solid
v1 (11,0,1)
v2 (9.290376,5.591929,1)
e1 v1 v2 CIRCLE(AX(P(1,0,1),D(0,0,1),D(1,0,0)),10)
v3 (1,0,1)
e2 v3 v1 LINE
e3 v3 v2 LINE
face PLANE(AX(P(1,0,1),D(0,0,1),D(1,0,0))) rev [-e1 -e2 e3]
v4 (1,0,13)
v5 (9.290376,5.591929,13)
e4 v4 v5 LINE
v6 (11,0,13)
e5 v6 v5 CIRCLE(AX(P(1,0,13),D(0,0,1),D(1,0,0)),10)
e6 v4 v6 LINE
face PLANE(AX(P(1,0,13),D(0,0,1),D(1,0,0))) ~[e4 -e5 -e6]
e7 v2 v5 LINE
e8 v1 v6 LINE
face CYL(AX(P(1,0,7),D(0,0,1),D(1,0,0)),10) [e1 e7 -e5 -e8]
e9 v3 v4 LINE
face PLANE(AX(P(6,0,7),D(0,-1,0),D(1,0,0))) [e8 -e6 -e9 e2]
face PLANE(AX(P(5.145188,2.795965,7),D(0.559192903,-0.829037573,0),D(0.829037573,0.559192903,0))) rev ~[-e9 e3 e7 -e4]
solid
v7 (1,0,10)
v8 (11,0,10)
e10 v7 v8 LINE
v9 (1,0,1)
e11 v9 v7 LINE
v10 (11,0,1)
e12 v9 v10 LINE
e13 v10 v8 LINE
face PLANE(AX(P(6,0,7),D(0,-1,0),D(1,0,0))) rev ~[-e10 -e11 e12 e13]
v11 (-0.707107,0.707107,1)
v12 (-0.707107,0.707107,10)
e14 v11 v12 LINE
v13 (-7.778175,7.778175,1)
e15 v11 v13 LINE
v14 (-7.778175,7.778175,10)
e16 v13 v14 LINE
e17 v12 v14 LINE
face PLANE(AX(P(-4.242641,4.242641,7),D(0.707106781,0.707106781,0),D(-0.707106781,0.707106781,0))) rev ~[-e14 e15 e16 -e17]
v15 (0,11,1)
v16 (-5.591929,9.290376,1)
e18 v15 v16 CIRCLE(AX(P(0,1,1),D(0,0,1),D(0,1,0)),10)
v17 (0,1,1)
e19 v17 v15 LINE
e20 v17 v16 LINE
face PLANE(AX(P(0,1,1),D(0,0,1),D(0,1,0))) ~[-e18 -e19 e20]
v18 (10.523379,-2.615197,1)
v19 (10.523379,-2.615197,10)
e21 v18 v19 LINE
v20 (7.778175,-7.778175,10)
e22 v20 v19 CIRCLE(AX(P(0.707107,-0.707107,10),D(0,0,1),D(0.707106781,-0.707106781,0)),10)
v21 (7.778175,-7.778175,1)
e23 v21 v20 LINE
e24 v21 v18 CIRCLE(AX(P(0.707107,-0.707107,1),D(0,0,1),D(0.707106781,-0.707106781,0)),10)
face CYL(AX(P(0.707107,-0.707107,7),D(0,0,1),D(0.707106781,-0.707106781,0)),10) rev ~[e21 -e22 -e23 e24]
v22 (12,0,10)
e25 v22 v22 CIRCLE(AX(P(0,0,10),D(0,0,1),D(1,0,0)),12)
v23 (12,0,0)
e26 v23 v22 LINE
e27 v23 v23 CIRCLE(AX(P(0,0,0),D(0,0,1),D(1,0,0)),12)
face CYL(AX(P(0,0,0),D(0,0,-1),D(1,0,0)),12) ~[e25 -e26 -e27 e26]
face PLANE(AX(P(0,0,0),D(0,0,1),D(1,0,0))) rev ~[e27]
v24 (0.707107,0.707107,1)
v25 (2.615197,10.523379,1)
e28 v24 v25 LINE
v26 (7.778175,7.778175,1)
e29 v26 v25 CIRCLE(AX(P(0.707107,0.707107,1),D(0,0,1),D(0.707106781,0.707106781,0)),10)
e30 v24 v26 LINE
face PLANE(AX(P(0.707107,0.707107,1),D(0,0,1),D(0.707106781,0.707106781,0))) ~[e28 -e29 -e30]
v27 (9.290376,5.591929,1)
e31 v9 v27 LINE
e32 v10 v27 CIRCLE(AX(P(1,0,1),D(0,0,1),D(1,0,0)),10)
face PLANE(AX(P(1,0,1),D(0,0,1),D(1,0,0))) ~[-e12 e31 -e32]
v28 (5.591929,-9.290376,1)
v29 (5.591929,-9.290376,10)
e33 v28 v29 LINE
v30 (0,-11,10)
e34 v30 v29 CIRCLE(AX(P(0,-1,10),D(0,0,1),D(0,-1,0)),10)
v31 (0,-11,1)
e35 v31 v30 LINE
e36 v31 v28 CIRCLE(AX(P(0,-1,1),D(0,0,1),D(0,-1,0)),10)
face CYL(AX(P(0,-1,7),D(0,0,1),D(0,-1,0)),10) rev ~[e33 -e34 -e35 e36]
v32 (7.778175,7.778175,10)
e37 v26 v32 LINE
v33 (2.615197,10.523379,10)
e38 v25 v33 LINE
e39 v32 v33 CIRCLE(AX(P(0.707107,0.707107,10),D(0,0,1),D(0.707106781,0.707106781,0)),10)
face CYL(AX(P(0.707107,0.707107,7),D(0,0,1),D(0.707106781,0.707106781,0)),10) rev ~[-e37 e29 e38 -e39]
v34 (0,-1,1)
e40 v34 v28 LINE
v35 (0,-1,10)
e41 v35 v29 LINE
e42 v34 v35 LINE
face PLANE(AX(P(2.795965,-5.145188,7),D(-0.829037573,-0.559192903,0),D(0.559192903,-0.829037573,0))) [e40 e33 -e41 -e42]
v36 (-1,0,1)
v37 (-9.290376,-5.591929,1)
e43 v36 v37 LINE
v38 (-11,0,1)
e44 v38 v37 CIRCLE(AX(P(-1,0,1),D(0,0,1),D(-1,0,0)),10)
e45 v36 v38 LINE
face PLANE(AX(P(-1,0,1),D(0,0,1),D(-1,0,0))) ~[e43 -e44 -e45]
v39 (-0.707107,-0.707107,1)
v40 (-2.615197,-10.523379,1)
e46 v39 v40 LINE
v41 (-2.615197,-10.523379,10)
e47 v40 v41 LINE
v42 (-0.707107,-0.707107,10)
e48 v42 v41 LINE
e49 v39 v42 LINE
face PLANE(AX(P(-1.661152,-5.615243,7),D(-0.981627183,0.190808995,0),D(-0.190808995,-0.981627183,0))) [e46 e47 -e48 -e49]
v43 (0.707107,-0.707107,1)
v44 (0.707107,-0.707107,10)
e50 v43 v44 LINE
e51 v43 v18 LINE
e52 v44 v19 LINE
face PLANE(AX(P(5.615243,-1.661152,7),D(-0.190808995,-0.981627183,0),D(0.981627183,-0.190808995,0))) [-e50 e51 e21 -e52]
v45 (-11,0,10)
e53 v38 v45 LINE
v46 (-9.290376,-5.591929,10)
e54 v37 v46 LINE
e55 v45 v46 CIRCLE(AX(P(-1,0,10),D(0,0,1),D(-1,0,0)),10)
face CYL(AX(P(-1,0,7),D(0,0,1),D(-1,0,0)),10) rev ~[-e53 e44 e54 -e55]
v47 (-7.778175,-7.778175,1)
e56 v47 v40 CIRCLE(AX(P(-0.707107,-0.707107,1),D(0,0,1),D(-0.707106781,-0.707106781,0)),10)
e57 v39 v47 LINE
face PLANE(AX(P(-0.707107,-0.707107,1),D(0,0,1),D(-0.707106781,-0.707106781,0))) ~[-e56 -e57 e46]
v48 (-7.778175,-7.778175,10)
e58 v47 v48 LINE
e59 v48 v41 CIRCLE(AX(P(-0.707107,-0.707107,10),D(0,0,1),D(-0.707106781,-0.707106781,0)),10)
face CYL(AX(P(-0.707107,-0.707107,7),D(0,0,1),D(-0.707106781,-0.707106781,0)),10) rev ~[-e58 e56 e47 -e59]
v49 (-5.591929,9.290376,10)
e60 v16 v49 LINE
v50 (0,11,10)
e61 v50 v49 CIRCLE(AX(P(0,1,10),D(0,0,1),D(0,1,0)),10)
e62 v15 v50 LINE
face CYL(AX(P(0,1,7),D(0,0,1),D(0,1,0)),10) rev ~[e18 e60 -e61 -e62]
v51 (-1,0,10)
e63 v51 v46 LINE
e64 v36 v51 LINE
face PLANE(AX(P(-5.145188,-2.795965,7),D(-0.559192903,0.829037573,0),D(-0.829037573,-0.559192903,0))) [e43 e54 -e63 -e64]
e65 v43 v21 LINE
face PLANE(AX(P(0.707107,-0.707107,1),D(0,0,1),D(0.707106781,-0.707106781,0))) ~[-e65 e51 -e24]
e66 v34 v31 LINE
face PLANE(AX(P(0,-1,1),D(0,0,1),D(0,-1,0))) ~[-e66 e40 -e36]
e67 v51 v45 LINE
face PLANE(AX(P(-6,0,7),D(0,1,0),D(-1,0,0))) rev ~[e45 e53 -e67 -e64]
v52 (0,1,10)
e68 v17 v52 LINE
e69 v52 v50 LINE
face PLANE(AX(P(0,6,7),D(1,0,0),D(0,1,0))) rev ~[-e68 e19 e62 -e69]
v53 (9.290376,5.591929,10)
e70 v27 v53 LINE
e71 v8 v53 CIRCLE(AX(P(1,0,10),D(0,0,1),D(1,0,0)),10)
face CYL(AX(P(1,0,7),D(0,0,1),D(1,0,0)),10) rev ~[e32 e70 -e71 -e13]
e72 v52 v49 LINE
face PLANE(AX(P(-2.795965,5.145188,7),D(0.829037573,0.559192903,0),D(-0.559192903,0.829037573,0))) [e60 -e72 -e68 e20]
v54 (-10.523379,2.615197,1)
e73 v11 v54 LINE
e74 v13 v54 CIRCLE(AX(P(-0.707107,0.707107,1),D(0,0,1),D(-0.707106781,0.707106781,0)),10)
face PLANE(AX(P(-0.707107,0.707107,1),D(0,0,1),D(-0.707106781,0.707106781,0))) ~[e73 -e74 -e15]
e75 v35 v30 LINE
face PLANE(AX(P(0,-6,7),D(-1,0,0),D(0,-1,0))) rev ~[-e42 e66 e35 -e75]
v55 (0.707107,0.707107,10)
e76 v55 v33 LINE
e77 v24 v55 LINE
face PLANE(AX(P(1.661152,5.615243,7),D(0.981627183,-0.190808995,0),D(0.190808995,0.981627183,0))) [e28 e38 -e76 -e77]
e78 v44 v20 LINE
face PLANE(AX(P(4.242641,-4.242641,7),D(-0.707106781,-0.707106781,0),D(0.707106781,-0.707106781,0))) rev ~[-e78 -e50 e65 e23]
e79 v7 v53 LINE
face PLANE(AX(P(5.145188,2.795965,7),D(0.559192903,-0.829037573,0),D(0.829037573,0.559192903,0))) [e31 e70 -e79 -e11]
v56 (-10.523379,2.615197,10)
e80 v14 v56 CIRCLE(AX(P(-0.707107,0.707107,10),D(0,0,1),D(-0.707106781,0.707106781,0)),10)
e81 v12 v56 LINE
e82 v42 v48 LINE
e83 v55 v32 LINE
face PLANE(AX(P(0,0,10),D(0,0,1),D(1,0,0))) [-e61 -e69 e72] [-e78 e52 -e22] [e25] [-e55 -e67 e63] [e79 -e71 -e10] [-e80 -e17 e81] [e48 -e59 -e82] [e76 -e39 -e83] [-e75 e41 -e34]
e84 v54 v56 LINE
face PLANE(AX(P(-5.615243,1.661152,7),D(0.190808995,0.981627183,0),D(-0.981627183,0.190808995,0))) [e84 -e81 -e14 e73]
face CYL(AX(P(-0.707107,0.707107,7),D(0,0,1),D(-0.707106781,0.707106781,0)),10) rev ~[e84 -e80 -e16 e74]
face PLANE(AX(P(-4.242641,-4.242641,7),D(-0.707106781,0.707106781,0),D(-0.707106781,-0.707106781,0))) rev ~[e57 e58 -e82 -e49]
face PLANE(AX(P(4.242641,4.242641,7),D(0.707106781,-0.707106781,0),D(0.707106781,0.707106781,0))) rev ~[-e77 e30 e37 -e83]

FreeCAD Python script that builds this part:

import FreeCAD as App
import Part
import Sketcher

V = App.Vector
Q = App.Units.Quantity

doc = App.newDocument("Part")
params = doc.addObject("Spreadsheet::Sheet", "Params")
for row, (alias, value) in enumerate([
    ("sketch1_width", "10 mm"),
    ("sketch1_height", "12 mm"),
    ("revolution_angle", "34 deg"),
    ("sketch2_diameter", "24 mm"),
    ("pad1_length", "10 mm"),
    ("sketch3_width", "10 mm"),
    ("sketch3_height", "12 mm"),
    ("revolution2_angle", "34 deg"),
], start=1):
    params.set(f"A{row}", alias)
    params.set(f"B{row}", "=" + value)
    params.setAlias(f"B{row}", alias)

body = doc.addObject("PartDesign::Body", "Body")

# Sketch on XZ plane
sketch1 = body.newObject("Sketcher::SketchObject", "Sketch")
sketch1.AttachmentSupport = (doc.getObject("XZ_Plane"), [""])
sketch1.MapMode = "FlatFace"
sketch1.addGeometry(Part.LineSegment(V(1, 13, 0), V(1, 1, 0)), False)
sketch1.addGeometry(Part.LineSegment(V(1, 1, 0), V(11, 1, 0)), False)
sketch1.addGeometry(Part.LineSegment(V(11, 1, 0), V(11, 13, 0)), False)
sketch1.addGeometry(Part.LineSegment(V(11, 13, 0), V(1, 13, 0)), False)
sketch1.addGeometry(Part.LineSegment(V(1, 1, 0), V(1, 13, 0)), True)  # axis
sketch1.addConstraint(Sketcher.Constraint("Coincident", 0, 2, 1, 1))
sketch1.addConstraint(Sketcher.Constraint("Coincident", 1, 2, 2, 1))
sketch1.addConstraint(Sketcher.Constraint("Coincident", 2, 2, 3, 1))
sketch1.addConstraint(Sketcher.Constraint("Coincident", 3, 2, 0, 1))
sketch1.addConstraint(Sketcher.Constraint("Vertical", 0))
sketch1.addConstraint(Sketcher.Constraint("Horizontal", 1))
sketch1.addConstraint(Sketcher.Constraint("Vertical", 2))
sketch1.addConstraint(Sketcher.Constraint("Horizontal", 3))
sketch1.addConstraint(Sketcher.Constraint("Vertical", 4))
sketch1.addConstraint(Sketcher.Constraint("Coincident", 4, 1, 0, 2))
sketch1.addConstraint(Sketcher.Constraint("Horizontal", 2, 2, 4, 2))
sketch1.addConstraint(Sketcher.Constraint("DistanceX", 1, 1, 1, 2, Q("10 mm")))
sketch1.addConstraint(Sketcher.Constraint("DistanceY", 0, 2, 0, 1, Q("12 mm")))
sketch1.addConstraint(Sketcher.Constraint("DistanceX", -1, 1, 0, 2, Q("1 mm")))
sketch1.addConstraint(Sketcher.Constraint("DistanceY", -1, 1, 0, 2, Q("1 mm")))
sketch1.setExpression("Constraints[11]", "Params.sketch1_width")
sketch1.setExpression("Constraints[12]", "Params.sketch1_height")
revolution = body.newObject("PartDesign::Revolution", "Revolution")
revolution.Profile = sketch1
revolution.ReferenceAxis = (sketch1, ["Axis0"])
revolution.setExpression("Angle", "Params.revolution_angle")
body2 = doc.addObject("PartDesign::Body", "Body001")
body2.AllowCompound = True
doc.recompute()

body2.BaseFeature = body
doc.recompute()

body3 = doc.addObject("PartDesign::Body", "Body002")
body3.BaseFeature = body
body3.Placement = App.Placement(V(0, 0, 0), App.Rotation(V(0, 0, 1), 45))
boolean = body2.newObject("PartDesign::Boolean", "Boolean")
boolean.Type = "Fuse"
boolean.addObjects([body3])
doc.recompute()

body4 = doc.addObject("PartDesign::Body", "Body003")
body4.BaseFeature = body
body4.Placement = App.Placement(V(0, 0, 0), App.Rotation(V(0, 0, 1), 90))
boolean2 = body2.newObject("PartDesign::Boolean", "Boolean001")
boolean2.Type = "Fuse"
boolean2.addObjects([body4])
doc.recompute()

body5 = doc.addObject("PartDesign::Body", "Body004")
body5.BaseFeature = body
body5.Placement = App.Placement(V(0, 0, 0), App.Rotation(V(0, 0, 1), 135))
boolean3 = body2.newObject("PartDesign::Boolean", "Boolean002")
boolean3.Type = "Fuse"
boolean3.addObjects([body5])
doc.recompute()

body6 = doc.addObject("PartDesign::Body", "Body005")
body6.BaseFeature = body
body6.Placement = App.Placement(V(0, 0, 0), App.Rotation(V(0, 0, 1), 180))
boolean4 = body2.newObject("PartDesign::Boolean", "Boolean003")
boolean4.Type = "Fuse"
boolean4.addObjects([body6])
doc.recompute()

body7 = doc.addObject("PartDesign::Body", "Body006")
body7.BaseFeature = body
body7.Placement = App.Placement(V(0, 0, 0), App.Rotation(V(0, 0, 1), 225))
boolean5 = body2.newObject("PartDesign::Boolean", "Boolean004")
boolean5.Type = "Fuse"
boolean5.addObjects([body7])
doc.recompute()

body8 = doc.addObject("PartDesign::Body", "Body007")
body8.BaseFeature = body
body8.Placement = App.Placement(V(0, 0, 0), App.Rotation(V(0, 0, 1), 270))
boolean6 = body2.newObject("PartDesign::Boolean", "Boolean005")
boolean6.Type = "Fuse"
boolean6.addObjects([body8])
doc.recompute()

body.Placement = App.Placement(V(0, 0, 0), App.Rotation(V(0, 0, 1), 315))
boolean7 = body2.newObject("PartDesign::Boolean", "Boolean006")
boolean7.Type = "Fuse"
boolean7.addObjects([body])
body9 = doc.addObject("PartDesign::Body", "Body008")

# Sketch on XY plane
sketch2 = body9.newObject("Sketcher::SketchObject", "Sketch001")
sketch2.AttachmentSupport = (doc.getObject("XY_Plane008"), [""])
sketch2.MapMode = "FlatFace"
sketch2.addGeometry(Part.Circle(V(0, 0, 0), V(0, 0, 1), 12), False)
sketch2.addConstraint(Sketcher.Constraint("Coincident", 0, 3, -1, 1))
sketch2.addConstraint(Sketcher.Constraint("Diameter", 0, Q("24 mm")))
sketch2.setExpression("Constraints[1]", "Params.sketch2_diameter")
pad1 = body9.newObject("PartDesign::Pad", "Pad")
pad1.Profile = sketch2
pad1.setExpression("Length", "Params.pad1_length")
doc.recompute()

boolean8 = body9.newObject("PartDesign::Boolean", "Boolean007")
boolean8.Type = "Cut"
boolean8.addObjects([body2])
body10 = doc.addObject("PartDesign::Body", "Body009")

# Sketch on XZ plane
sketch3 = body10.newObject("Sketcher::SketchObject", "Sketch002")
sketch3.AttachmentSupport = (doc.getObject("XZ_Plane009"), [""])
sketch3.MapMode = "FlatFace"
sketch3.addGeometry(Part.LineSegment(V(1, 13, 0), V(1, 1, 0)), False)
sketch3.addGeometry(Part.LineSegment(V(1, 1, 0), V(11, 1, 0)), False)
sketch3.addGeometry(Part.LineSegment(V(11, 1, 0), V(11, 13, 0)), False)
sketch3.addGeometry(Part.LineSegment(V(11, 13, 0), V(1, 13, 0)), False)
sketch3.addGeometry(Part.LineSegment(V(1, 1, 0), V(1, 13, 0)), True)  # axis
sketch3.addConstraint(Sketcher.Constraint("Coincident", 0, 2, 1, 1))
sketch3.addConstraint(Sketcher.Constraint("Coincident", 1, 2, 2, 1))
sketch3.addConstraint(Sketcher.Constraint("Coincident", 2, 2, 3, 1))
sketch3.addConstraint(Sketcher.Constraint("Coincident", 3, 2, 0, 1))
sketch3.addConstraint(Sketcher.Constraint("Vertical", 0))
sketch3.addConstraint(Sketcher.Constraint("Horizontal", 1))
sketch3.addConstraint(Sketcher.Constraint("Vertical", 2))
sketch3.addConstraint(Sketcher.Constraint("Horizontal", 3))
sketch3.addConstraint(Sketcher.Constraint("Vertical", 4))
sketch3.addConstraint(Sketcher.Constraint("Coincident", 4, 1, 0, 2))
sketch3.addConstraint(Sketcher.Constraint("Horizontal", 2, 2, 4, 2))
sketch3.addConstraint(Sketcher.Constraint("DistanceX", 1, 1, 1, 2, Q("10 mm")))
sketch3.addConstraint(Sketcher.Constraint("DistanceY", 0, 2, 0, 1, Q("12 mm")))
sketch3.addConstraint(Sketcher.Constraint("DistanceX", -1, 1, 0, 2, Q("1 mm")))
sketch3.addConstraint(Sketcher.Constraint("DistanceY", -1, 1, 0, 2, Q("1 mm")))
sketch3.setExpression("Constraints[11]", "Params.sketch3_width")
sketch3.setExpression("Constraints[12]", "Params.sketch3_height")
revolution2 = body10.newObject("PartDesign::Revolution", "Revolution001")
revolution2.Profile = sketch3
revolution2.ReferenceAxis = (sketch3, ["Axis0"])
revolution2.setExpression("Angle", "Params.revolution2_angle")

doc.recompute()
